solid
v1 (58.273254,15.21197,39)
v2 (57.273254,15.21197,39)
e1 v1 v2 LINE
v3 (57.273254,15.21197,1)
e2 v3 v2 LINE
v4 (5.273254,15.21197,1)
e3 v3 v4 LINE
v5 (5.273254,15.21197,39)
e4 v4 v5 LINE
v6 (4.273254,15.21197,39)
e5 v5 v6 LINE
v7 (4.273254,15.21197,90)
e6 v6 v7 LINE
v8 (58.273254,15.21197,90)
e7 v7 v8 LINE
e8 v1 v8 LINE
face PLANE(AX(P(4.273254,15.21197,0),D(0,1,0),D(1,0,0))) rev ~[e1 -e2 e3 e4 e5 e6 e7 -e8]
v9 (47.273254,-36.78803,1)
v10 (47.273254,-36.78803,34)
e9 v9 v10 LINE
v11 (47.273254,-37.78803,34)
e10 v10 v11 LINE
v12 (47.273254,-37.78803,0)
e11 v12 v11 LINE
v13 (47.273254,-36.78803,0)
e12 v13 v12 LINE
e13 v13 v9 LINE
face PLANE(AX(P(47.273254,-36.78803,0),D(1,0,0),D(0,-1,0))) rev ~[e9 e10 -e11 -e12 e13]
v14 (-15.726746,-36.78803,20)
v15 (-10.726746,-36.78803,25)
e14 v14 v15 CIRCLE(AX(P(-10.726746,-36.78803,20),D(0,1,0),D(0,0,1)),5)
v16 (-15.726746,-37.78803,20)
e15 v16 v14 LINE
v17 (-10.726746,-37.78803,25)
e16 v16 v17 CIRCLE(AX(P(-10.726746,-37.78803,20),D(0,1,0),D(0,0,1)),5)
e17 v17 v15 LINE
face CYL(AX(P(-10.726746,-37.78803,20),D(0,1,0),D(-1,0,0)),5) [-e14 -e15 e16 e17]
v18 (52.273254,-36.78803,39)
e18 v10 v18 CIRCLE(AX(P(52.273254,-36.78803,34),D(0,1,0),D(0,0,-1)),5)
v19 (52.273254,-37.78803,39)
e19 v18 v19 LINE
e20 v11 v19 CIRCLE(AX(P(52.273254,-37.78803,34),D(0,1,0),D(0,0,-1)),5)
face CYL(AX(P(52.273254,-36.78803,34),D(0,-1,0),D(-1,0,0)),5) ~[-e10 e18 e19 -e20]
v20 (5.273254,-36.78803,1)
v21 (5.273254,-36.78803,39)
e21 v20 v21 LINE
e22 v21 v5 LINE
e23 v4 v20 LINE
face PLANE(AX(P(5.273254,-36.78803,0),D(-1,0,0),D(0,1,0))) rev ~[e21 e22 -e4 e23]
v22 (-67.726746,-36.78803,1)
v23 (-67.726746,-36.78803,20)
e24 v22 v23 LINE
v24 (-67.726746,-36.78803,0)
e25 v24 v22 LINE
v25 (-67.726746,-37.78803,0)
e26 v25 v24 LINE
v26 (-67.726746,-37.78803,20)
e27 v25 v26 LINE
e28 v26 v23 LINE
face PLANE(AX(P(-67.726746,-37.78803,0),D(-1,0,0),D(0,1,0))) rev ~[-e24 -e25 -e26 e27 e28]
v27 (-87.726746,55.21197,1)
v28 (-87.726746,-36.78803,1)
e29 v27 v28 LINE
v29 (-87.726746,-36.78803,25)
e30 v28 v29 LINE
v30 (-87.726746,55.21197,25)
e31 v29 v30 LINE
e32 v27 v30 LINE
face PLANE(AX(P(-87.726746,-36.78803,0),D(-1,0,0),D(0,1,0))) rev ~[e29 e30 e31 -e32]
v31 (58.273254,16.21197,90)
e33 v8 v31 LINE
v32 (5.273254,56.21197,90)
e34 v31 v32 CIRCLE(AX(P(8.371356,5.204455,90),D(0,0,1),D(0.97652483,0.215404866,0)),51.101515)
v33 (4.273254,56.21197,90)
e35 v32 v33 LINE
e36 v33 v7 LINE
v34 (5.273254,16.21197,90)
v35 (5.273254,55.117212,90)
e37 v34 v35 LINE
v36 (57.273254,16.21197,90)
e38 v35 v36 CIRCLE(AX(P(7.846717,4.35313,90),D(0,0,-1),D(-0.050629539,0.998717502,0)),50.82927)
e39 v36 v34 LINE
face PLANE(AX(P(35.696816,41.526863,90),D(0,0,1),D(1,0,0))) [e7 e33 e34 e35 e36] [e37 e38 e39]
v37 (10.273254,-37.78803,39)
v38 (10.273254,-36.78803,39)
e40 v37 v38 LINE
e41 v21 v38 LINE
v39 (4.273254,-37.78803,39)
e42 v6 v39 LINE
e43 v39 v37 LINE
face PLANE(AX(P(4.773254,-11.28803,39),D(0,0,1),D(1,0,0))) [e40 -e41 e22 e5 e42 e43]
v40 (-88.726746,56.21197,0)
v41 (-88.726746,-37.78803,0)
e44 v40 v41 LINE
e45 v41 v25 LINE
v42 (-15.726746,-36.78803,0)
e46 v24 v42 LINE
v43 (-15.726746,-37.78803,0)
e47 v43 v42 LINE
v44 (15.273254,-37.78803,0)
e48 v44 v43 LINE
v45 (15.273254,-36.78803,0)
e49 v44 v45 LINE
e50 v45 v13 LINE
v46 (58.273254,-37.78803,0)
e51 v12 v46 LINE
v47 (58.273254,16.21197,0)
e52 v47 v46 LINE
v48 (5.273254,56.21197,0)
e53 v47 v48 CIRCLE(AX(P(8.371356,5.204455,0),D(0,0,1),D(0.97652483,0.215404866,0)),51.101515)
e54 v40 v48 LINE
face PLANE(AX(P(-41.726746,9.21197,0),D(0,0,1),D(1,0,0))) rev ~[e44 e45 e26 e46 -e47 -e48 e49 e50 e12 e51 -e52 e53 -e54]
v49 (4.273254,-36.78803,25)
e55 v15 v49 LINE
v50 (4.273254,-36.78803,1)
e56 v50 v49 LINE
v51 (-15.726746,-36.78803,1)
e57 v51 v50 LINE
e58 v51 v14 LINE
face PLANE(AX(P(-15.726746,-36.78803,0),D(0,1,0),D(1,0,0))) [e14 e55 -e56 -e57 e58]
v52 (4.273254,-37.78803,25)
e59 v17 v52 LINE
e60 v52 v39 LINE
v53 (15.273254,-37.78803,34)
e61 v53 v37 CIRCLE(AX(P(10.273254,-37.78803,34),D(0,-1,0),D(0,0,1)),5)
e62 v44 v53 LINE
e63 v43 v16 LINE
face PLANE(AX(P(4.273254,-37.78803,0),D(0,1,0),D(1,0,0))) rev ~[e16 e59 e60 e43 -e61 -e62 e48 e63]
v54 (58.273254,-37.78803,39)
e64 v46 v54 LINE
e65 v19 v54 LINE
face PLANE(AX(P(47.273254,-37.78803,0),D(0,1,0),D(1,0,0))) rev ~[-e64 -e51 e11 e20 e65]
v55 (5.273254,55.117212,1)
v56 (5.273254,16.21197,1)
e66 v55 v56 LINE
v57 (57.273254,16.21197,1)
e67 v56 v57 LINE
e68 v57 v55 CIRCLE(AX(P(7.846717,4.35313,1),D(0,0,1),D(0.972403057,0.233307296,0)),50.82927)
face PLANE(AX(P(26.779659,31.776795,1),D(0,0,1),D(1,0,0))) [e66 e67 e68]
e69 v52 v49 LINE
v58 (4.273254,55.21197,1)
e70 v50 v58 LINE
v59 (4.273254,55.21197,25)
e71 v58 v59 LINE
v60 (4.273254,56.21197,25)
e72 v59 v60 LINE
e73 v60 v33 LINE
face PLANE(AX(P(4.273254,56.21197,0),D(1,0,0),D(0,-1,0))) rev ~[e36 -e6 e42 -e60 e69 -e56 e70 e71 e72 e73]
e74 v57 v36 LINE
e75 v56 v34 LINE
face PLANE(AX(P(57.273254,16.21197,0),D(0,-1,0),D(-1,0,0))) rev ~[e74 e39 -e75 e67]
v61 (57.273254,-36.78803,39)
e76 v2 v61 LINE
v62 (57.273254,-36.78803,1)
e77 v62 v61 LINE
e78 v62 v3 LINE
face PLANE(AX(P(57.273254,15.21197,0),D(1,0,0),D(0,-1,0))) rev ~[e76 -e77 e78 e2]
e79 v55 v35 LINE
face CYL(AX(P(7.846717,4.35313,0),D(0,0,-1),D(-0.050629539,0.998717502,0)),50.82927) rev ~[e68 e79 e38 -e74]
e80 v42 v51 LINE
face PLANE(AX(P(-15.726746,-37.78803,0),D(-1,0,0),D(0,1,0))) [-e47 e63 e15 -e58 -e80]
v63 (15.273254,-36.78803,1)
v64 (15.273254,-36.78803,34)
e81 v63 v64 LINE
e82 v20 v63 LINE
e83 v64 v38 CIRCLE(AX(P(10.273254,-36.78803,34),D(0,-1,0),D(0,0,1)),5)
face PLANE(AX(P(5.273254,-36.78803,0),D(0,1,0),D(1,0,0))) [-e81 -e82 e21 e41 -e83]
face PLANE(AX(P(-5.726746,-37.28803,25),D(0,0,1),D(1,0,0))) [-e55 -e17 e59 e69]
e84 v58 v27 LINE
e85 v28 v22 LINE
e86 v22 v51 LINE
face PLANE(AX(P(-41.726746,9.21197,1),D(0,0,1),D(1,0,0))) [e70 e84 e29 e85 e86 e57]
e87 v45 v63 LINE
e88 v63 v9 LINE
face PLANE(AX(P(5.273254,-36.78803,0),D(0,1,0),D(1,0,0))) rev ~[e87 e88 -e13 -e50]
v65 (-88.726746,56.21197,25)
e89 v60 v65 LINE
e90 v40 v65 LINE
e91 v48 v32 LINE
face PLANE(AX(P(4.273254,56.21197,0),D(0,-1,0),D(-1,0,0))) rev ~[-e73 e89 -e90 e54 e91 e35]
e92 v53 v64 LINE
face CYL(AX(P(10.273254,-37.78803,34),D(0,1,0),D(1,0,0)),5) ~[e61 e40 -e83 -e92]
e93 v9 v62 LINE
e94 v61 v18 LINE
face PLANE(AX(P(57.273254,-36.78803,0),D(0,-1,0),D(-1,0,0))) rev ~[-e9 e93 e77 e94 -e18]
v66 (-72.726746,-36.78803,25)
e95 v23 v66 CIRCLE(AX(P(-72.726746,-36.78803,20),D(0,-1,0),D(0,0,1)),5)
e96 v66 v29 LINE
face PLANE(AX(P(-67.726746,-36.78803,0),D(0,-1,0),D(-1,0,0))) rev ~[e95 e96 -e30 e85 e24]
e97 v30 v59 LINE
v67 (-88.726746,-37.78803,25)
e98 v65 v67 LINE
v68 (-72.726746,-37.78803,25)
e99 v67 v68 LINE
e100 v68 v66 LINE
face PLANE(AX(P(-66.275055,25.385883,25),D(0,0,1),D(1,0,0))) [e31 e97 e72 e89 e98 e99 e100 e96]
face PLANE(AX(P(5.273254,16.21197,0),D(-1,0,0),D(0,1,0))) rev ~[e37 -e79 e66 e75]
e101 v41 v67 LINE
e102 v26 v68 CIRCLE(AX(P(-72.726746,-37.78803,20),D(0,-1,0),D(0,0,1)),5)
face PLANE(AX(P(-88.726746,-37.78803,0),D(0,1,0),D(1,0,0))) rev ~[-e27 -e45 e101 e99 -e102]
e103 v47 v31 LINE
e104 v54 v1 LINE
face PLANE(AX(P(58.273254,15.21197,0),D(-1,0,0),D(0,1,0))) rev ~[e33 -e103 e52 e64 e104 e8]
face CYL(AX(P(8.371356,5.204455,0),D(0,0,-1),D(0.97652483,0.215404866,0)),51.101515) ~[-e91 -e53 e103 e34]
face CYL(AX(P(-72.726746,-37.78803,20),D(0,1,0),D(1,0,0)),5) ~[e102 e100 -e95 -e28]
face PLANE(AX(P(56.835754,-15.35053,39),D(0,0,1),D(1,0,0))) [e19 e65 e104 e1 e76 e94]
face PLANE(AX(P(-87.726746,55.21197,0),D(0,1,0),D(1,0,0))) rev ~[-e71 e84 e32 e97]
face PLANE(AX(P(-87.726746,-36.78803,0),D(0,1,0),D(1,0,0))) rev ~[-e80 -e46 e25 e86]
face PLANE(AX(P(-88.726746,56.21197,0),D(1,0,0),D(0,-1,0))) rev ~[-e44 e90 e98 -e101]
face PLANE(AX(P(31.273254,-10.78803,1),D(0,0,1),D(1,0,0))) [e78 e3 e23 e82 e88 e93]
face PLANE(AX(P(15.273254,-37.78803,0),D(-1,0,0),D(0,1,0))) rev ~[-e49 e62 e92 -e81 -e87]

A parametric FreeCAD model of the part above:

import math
import FreeCAD as App
import Part
import Sketcher


def edges_at(feature, points):
    """Names of the edges that pass closest to the given points."""
    edges = feature.Shape.Edges
    near = lambda p: min(range(len(edges)), key=lambda i: edges[i].distToShape(Part.Vertex(*p))[0])
    return sorted({f"Edge{near(p) + 1}" for p in points})


def add_polygon(sketch, points):
    """Adds a closed chain of lines whose ends are joined by coincident constraints."""
    first, n = sketch.GeometryCount, len(points)
    for a, b in zip(points, points[1:] + points[:1]):
        sketch.addGeometry(Part.LineSegment(App.Vector(*a, 0), App.Vector(*b, 0)), False)
    for i in range(n):
        sketch.addConstraint(Sketcher.Constraint("Coincident", first + i, 2, first + (i + 1) % n, 1))

doc = App.newDocument("Part")
body = doc.addObject("PartDesign::Body", "Body")

# Sketch on XY plane
sketch1 = body.newObject("Sketcher::SketchObject", "Sketch")
sketch1.AttachmentSupport = (doc.getObject("XY_Plane"), [""])
sketch1.MapMode = "FlatFace"
sketch1.addGeometry(Part.ArcOfCircle(Part.Circle(App.Vector(8.4, 5.2, 0), App.Vector(0, 0, 1), 51.1), math.radians(12), math.radians(93)), False)
sketch1.addGeometry(Part.LineSegment(App.Vector(5.3, 56.2, 0), App.Vector(4.3, 56.2, 0)), False)
sketch1.addGeometry(Part.LineSegment(App.Vector(4.3, 56.2, 0), App.Vector(4.3, 15.2, 0)), False)
sketch1.addGeometry(Part.LineSegment(App.Vector(4.3, 15.2, 0), App.Vector(58.3, 15.2, 0)), False)
sketch1.addGeometry(Part.LineSegment(App.Vector(58.3, 15.2, 0), App.Vector(58.3, 16.2, 0)), False)
sketch1.addGeometry(Part.ArcOfCircle(Part.Circle(App.Vector(7.8, 4.4, 0), App.Vector(0, 0, 1), 50.8), math.radians(13), math.radians(93)), False)
sketch1.addGeometry(Part.LineSegment(App.Vector(57.3, 16.2, 0), App.Vector(5.3, 16.2, 0)), False)
sketch1.addGeometry(Part.LineSegment(App.Vector(5.3, 16.2, 0), App.Vector(5.3, 55.1, 0)), False)
sketch1.addConstraint(Sketcher.Constraint("Coincident", 0, 2, 1, 1))
sketch1.addConstraint(Sketcher.Constraint("Coincident", 1, 2, 2, 1))
sketch1.addConstraint(Sketcher.Constraint("Coincident", 2, 2, 3, 1))
sketch1.addConstraint(Sketcher.Constraint("Coincident", 3, 2, 4, 1))
sketch1.addConstraint(Sketcher.Constraint("Coincident", 4, 2, 0, 1))
sketch1.addConstraint(Sketcher.Constraint("Coincident", 5, 1, 6, 1))
sketch1.addConstraint(Sketcher.Constraint("Coincident", 6, 2, 7, 1))
sketch1.addConstraint(Sketcher.Constraint("Coincident", 7, 2, 5, 2))
sketch1.addConstraint(Sketcher.Constraint("Horizontal", 1))
sketch1.addConstraint(Sketcher.Constraint("Vertical", 2))
sketch1.addConstraint(Sketcher.Constraint("Horizontal", 3))
sketch1.addConstraint(Sketcher.Constraint("Vertical", 4))
sketch1.addConstraint(Sketcher.Constraint("Horizontal", 6))
sketch1.addConstraint(Sketcher.Constraint("Vertical", 7))
sketch1.addConstraint(Sketcher.Constraint("Horizontal", 4, 2, 5, 1))
sketch1.addConstraint(Sketcher.Constraint("Vertical", 0, 2, 6, 2))
sketch1.addConstraint(Sketcher.Constraint("Equal", 1, 4))
sketch1.addConstraint(Sketcher.Constraint("DistanceX", 1, 2, 1, 1, 1.0))
sketch1.addConstraint(Sketcher.Constraint("DistanceX", 3, 1, 3, 2, 54.0))
sketch1.addConstraint(Sketcher.Constraint("DistanceX", 6, 2, 6, 1, 52.0))
sketch1.addConstraint(Sketcher.Constraint("DistanceY", 2, 2, 2, 1, 41.0))
sketch1.addConstraint(Sketcher.Constraint("Radius", 5, 50.82927))
sketch1.addConstraint(Sketcher.Constraint("Radius", 0, 51.101515))
sketch1.addConstraint(Sketcher.Constraint("DistanceY", 7, 1, 7, 2, 38.905242))
sketch1.addConstraint(Sketcher.Constraint("DistanceY", -1, 1, 5, 3, 4.35313))
sketch1.addConstraint(Sketcher.Constraint("DistanceX", -1, 1, 0, 3, 8.371356))
pad1 = body.newObject("PartDesign::Pad", "Pad")
pad1.Profile = sketch1
pad1.Length = 90

# Sketch on XY plane
sketch2 = body.newObject("Sketcher::SketchObject", "Sketch001")
sketch2.AttachmentSupport = (doc.getObject("XY_Plane"), [""])
sketch2.MapMode = "FlatFace"
add_polygon(sketch2, [(58.3, 15.2), (57.3, 15.2), (57.3, -36.8), (47.3, -36.8), (47.3, -37.8), (58.3, -37.8)])  # lines 0-5
add_polygon(sketch2, [(5.3, 15.2), (4.3, 15.2), (4.3, -37.8), (15.3, -37.8), (15.3, -36.8), (5.3, -36.8)])  # lines 6-11
sketch2.addConstraint(Sketcher.Constraint("Horizontal", 0))
sketch2.addConstraint(Sketcher.Constraint("Vertical", 1))
sketch2.addConstraint(Sketcher.Constraint("Horizontal", 2))
sketch2.addConstraint(Sketcher.Constraint("Vertical", 3))
sketch2.addConstraint(Sketcher.Constraint("Horizontal", 4))
sketch2.addConstraint(Sketcher.Constraint("Vertical", 5))
sketch2.addConstraint(Sketcher.Constraint("Horizontal", 6))
sketch2.addConstraint(Sketcher.Constraint("Vertical", 7))
sketch2.addConstraint(Sketcher.Constraint("Horizontal", 8))
sketch2.addConstraint(Sketcher.Constraint("Vertical", 9))
sketch2.addConstraint(Sketcher.Constraint("Horizontal", 10))
sketch2.addConstraint(Sketcher.Constraint("Vertical", 11))
sketch2.addConstraint(Sketcher.Constraint("Horizontal", 5, 2, 6, 2))
sketch2.addConstraint(Sketcher.Constraint("Horizontal", 4, 2, 7, 2))
sketch2.addConstraint(Sketcher.Constraint("Horizontal", 2, 2, 9, 2))
sketch2.addConstraint(Sketcher.Constraint("Equal", 0, 6))
sketch2.addConstraint(Sketcher.Constraint("Equal", 4, 8))
sketch2.addConstraint(Sketcher.Constraint("Equal", 6, 3))
sketch2.addConstraint(Sketcher.Constraint("DistanceX", 0, 2, 0, 1, 1.0))
sketch2.addConstraint(Sketcher.Constraint("DistanceX", 2, 2, 2, 1, 10.0))
sketch2.addConstraint(Sketcher.Constraint("DistanceY", 1, 2, 1, 1, 52.0))
sketch2.addConstraint(Sketcher.Constraint("DistanceX", 6, 2, 0, 2, 53.0))
sketch2.addConstraint(Sketcher.Constraint("DistanceY", -1, 1, 0, 2, 15.21197))
sketch2.addConstraint(Sketcher.Constraint("DistanceX", -1, 1, 0, 2, 57.273254))
pad2 = body.newObject("PartDesign::Pad", "Pad001")
pad2.Profile = sketch2
pad2.Length = 39

# Sketch on XY plane
sketch3 = body.newObject("Sketcher::SketchObject", "Sketch002")
sketch3.AttachmentSupport = (doc.getObject("XY_Plane"), [""])
sketch3.MapMode = "FlatFace"
add_polygon(sketch3, [(-87.7, -36.8), (-87.7, 55.2), (4.3, 55.2), (4.3, 56.2), (-88.7, 56.2), (-88.7, -37.8), (-67.7, -37.8), (-67.7, -36.8)])  # lines 0-7
add_polygon(sketch3, [(-15.7, -36.8), (-15.7, -37.8), (4.3, -37.8), (4.3, -36.8)])  # lines 8-11
sketch3.addConstraint(Sketcher.Constraint("Vertical", 0))
sketch3.addConstraint(Sketcher.Constraint("Horizontal", 1))
sketch3.addConstraint(Sketcher.Constraint("Vertical", 2))
sketch3.addConstraint(Sketcher.Constraint("Horizontal", 3))
sketch3.addConstraint(Sketcher.Constraint("Vertical", 4))
sketch3.addConstraint(Sketcher.Constraint("Horizontal", 5))
sketch3.addConstraint(Sketcher.Constraint("Vertical", 6))
sketch3.addConstraint(Sketcher.Constraint("Horizontal", 7))
sketch3.addConstraint(Sketcher.Constraint("Vertical", 8))
sketch3.addConstraint(Sketcher.Constraint("Horizontal", 9))
sketch3.addConstraint(Sketcher.Constraint("Vertical", 10))
sketch3.addConstraint(Sketcher.Constraint("Horizontal", 11))
sketch3.addConstraint(Sketcher.Constraint("Horizontal", 5, 2, 8, 2))
sketch3.addConstraint(Sketcher.Constraint("Horizontal", 7, 2, 10, 2))
sketch3.addConstraint(Sketcher.Constraint("Vertical", 2, 2, 9, 2))
sketch3.addConstraint(Sketcher.Constraint("Equal", 7, 9))
sketch3.addConstraint(Sketcher.Constraint("Equal", 1, 0))
sketch3.addConstraint(Sketcher.Constraint("Equal", 2, 6))
sketch3.addConstraint(Sketcher.Constraint("DistanceX", 1, 1, 1, 2, 92.0))
sketch3.addConstraint(Sketcher.Constraint("DistanceX", 3, 2, 3, 1, 93.0))
sketch3.addConstraint(Sketcher.Constraint("DistanceX", 5, 1, 5, 2, 21.0))
sketch3.addConstraint(Sketcher.Constraint("DistanceY", 2, 1, 2, 2, 1.0))
sketch3.addConstraint(Sketcher.Constraint("DistanceY", -1, 1, 0, 2, 55.21197))
sketch3.addConstraint(Sketcher.Constraint("DistanceX", 0, 2, -1, 1, 87.726746))
pad3 = body.newObject("PartDesign::Pad", "Pad002")
pad3.Profile = sketch3
pad3.Length = 25

# Sketch on XY plane
sketch4 = body.newObject("Sketcher::SketchObject", "Sketch003")
sketch4.AttachmentSupport = (doc.getObject("XY_Plane"), [""])
sketch4.MapMode = "FlatFace"
add_polygon(sketch4, [(4, 55), (-88, 55), (-88, -37), (4, -37)])  # lines 0-3
add_polygon(sketch4, [(57, 15), (5, 15), (5, -37), (57, -37)])  # lines 4-7
sketch4.addGeometry(Part.LineSegment(App.Vector(5, 55, 0), App.Vector(5, 16, 0)), False)  # 8
sketch4.addGeometry(Part.LineSegment(App.Vector(5, 16, 0), App.Vector(57, 16, 0)), False)  # 9
sketch4.addGeometry(Part.ArcOfCircle(Part.Circle(App.Vector(8, 4, 0), App.Vector(0, 0, 1), 51), math.radians(13), math.radians(93)), False)  # 10
sketch4.addConstraint(Sketcher.Constraint("Coincident", 8, 2, 9, 1))
sketch4.addConstraint(Sketcher.Constraint("Coincident", 9, 2, 10, 1))
sketch4.addConstraint(Sketcher.Constraint("Coincident", 10, 2, 8, 1))
sketch4.addConstraint(Sketcher.Constraint("Horizontal", 0))
sketch4.addConstraint(Sketcher.Constraint("Vertical", 1))
sketch4.addConstraint(Sketcher.Constraint("Horizontal", 2))
sketch4.addConstraint(Sketcher.Constraint("Vertical", 3))
sketch4.addConstraint(Sketcher.Constraint("Horizontal", 4))
sketch4.addConstraint(Sketcher.Constraint("Vertical", 5))
sketch4.addConstraint(Sketcher.Constraint("Horizontal", 6))
sketch4.addConstraint(Sketcher.Constraint("Vertical", 7))
sketch4.addConstraint(Sketcher.Constraint("Vertical", 8))
sketch4.addConstraint(Sketcher.Constraint("Horizontal", 9))
sketch4.addConstraint(Sketcher.Constraint("Horizontal", 2, 2, 5, 2))
sketch4.addConstraint(Sketcher.Constraint("Vertical", 5, 2, 8, 2))
sketch4.addConstraint(Sketcher.Constraint("Vertical", 7, 2, 9, 2))
sketch4.addConstraint(Sketcher.Constraint("Equal", 2, 1))
sketch4.addConstraint(Sketcher.Constraint("Equal", 9, 5))
sketch4.addConstraint(Sketcher.Constraint("DistanceX", 0, 2, 0, 1, 92.0))
sketch4.addConstraint(Sketcher.Constraint("DistanceX", 4, 2, 4, 1, 52.0))
sketch4.addConstraint(Sketcher.Constraint("DistanceX", 3, 2, 4, 2, 1.0))
sketch4.addConstraint(Sketcher.Constraint("DistanceY", 4, 2, 8, 2, 1.0))
sketch4.addConstraint(Sketcher.Constraint("Radius", 10, 50.82927))
sketch4.addConstraint(Sketcher.Constraint("DistanceY", 8, 2, 8, 1, 38.905242))
sketch4.addConstraint(Sketcher.Constraint("DistanceY", -1, 1, 10, 3, 4.35313))
sketch4.addConstraint(Sketcher.Constraint("DistanceX", -1, 1, 10, 3, 7.846717))
pad4 = body.newObject("PartDesign::Pad", "Pad003")
pad4.Profile = sketch4
pad4.Length = 1
doc.recompute()

fillet = body.newObject("PartDesign::Fillet", "Fillet")
fillet.Base = (pad4, edges_at(pad4, [(-67.727, -37.288, 25)]))
fillet.Radius = 5
doc.recompute()

fillet2 = body.newObject("PartDesign::Fillet", "Fillet001")
fillet2.Base = (fillet, edges_at(fillet, [(-15.727, -37.288, 25)]))
fillet2.Radius = 5
doc.recompute()

fillet3 = body.newObject("PartDesign::Fillet", "Fillet002")
fillet3.Base = (fillet2, edges_at(fillet2, [(15.273, -37.288, 39)]))
fillet3.Radius = 5
doc.recompute()

fillet4 = body.newObject("PartDesign::Fillet", "Fillet003")
fillet4.Base = (fillet3, edges_at(fillet3, [(47.273, -37.288, 39)]))
fillet4.Radius = 5

doc.recompute()
